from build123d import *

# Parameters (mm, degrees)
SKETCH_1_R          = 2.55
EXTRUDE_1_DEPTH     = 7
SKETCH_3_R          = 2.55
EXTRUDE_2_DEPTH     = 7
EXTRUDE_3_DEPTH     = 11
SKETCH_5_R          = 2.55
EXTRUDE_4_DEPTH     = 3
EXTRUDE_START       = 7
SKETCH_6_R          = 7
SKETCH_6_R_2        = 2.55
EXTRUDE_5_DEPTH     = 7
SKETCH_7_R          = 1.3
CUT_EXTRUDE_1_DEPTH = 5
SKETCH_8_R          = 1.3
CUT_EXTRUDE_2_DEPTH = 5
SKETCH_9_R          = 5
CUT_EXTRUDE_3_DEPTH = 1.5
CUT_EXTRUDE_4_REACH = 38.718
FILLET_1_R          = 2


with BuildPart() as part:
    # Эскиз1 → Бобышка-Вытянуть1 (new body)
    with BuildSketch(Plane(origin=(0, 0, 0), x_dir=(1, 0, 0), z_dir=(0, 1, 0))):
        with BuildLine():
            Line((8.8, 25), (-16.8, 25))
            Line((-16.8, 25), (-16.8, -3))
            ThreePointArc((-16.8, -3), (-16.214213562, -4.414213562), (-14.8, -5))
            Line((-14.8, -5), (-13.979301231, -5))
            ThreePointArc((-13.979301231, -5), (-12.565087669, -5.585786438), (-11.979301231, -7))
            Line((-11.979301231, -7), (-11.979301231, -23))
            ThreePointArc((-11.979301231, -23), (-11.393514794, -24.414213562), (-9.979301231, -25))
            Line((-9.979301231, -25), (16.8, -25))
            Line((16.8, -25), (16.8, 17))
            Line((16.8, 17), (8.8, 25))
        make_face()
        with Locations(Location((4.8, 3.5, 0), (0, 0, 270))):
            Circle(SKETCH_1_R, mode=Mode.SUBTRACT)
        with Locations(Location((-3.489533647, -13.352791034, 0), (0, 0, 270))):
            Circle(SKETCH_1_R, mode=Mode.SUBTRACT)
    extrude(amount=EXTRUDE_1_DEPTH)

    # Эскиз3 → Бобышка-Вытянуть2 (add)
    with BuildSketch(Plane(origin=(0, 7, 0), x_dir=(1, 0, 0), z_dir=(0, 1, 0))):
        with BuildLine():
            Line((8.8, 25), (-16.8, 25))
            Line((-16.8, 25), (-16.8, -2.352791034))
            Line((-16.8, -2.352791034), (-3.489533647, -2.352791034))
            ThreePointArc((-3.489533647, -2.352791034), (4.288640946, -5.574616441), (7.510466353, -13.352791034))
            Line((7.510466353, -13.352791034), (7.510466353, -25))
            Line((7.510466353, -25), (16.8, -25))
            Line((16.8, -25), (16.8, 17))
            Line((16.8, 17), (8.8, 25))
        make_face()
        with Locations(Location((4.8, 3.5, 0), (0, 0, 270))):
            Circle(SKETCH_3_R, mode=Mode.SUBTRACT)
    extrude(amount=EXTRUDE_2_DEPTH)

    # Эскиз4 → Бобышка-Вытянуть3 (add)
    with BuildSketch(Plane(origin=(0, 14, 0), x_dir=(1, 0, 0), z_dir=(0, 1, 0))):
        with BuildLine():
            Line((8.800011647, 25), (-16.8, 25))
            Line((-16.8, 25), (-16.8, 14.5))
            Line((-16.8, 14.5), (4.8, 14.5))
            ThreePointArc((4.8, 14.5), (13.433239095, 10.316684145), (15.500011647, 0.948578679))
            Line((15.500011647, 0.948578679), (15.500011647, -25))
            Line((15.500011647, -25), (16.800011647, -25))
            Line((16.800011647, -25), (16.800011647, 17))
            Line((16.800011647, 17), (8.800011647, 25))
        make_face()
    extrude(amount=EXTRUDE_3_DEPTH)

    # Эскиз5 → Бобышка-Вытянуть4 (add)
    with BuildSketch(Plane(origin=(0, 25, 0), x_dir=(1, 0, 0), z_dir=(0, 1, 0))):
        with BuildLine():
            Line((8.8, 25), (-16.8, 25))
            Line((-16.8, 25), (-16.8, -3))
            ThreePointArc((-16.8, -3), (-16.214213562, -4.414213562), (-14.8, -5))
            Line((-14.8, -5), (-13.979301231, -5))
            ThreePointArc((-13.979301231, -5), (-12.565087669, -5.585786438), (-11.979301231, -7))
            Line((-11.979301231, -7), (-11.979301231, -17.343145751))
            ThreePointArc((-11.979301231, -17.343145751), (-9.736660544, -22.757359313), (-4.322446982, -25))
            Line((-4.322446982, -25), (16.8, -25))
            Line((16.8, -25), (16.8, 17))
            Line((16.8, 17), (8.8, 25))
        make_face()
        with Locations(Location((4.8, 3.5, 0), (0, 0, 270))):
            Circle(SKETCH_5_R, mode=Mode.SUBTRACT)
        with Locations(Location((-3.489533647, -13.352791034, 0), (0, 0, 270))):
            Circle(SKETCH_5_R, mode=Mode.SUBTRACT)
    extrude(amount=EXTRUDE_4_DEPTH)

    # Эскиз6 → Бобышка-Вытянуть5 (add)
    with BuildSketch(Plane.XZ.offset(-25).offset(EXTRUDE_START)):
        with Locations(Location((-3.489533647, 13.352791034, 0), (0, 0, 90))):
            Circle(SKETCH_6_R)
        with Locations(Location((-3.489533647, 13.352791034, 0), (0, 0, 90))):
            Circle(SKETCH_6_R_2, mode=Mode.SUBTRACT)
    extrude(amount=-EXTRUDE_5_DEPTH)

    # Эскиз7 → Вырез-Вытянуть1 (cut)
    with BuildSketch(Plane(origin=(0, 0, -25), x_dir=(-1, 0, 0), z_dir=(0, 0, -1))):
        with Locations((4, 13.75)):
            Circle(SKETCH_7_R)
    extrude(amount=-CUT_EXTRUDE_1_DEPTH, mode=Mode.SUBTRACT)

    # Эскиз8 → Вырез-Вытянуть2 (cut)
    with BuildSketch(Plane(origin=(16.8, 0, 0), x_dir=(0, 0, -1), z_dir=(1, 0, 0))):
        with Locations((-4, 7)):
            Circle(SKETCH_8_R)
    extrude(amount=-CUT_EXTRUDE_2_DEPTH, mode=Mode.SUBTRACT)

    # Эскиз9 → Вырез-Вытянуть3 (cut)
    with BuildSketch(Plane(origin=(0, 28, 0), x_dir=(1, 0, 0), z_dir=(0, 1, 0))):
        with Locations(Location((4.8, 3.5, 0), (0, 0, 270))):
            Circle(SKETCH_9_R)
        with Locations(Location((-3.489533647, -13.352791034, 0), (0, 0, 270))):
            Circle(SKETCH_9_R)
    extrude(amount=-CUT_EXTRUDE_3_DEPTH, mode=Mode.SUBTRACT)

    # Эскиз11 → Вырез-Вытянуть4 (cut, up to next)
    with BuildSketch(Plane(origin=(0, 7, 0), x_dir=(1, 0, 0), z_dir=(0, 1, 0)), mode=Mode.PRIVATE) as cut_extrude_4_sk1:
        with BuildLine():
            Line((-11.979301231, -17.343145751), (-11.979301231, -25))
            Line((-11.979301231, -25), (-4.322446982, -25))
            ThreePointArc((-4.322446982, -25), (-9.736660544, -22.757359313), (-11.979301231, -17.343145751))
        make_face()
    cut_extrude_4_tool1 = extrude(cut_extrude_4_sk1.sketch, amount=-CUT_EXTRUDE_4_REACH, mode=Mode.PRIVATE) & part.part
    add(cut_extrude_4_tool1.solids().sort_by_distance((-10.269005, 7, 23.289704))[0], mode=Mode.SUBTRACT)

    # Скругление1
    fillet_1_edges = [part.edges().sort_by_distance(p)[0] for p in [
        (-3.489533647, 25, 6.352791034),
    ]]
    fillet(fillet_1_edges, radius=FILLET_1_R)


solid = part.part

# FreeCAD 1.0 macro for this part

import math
import FreeCAD as App
import Part
import Sketcher
Q = App.Units.Quantity


def edges_at(feature, points):
    """Names of the edges that pass closest to the given points."""
    edges = feature.Shape.Edges
    near = lambda p: min(range(len(edges)), key=lambda i: edges[i].distToShape(Part.Vertex(*p))[0])
    return sorted({f"Edge{near(p) + 1}" for p in points})

doc = App.newDocument("Part")
body = doc.addObject("PartDesign::Body", "Body")

# Sketch on XZ plane
sketch1 = body.newObject("Sketcher::SketchObject", "Sketch")
sketch1.AttachmentSupport = (doc.getObject("XZ_Plane"), [""])
sketch1.MapMode = "FlatFace"
sketch1.addGeometry([
    Part.LineSegment(App.Vector(8.8, -25, 0), App.Vector(-16.8, -25, 0)),  # 0
    Part.LineSegment(App.Vector(-16.8, -25, 0), App.Vector(-16.8, 3, 0)),  # 1
    Part.ArcOfCircle(Part.Circle(App.Vector(-14.8, 3, 0), App.Vector(0, 0, 1), 2), math.radians(90), math.radians(180)),  # 2
    Part.LineSegment(App.Vector(-14.8, 5, 0), App.Vector(-14, 5, 0)),  # 3
    Part.ArcOfCircle(Part.Circle(App.Vector(-14, 7, 0), App.Vector(0, 0, 1), 2), math.radians(-90), math.radians(0)),  # 4
    Part.LineSegment(App.Vector(-12, 7, 0), App.Vector(-12, 23, 0)),  # 5
    Part.ArcOfCircle(Part.Circle(App.Vector(-10, 23, 0), App.Vector(0, 0, 1), 2), math.radians(90), math.radians(180)),  # 6
    Part.LineSegment(App.Vector(-10, 25, 0), App.Vector(16.8, 25, 0)),  # 7
    Part.LineSegment(App.Vector(16.8, 25, 0), App.Vector(16.8, -17, 0)),  # 8
    Part.LineSegment(App.Vector(16.8, -17, 0), App.Vector(8.8, -25, 0)),  # 9
    Part.Circle(App.Vector(-3.5, 13.4, 0), App.Vector(0, 0, 1), 2.5),  # 10
    Part.Circle(App.Vector(4.8, -3.5, 0), App.Vector(0, 0, 1), 2.5),  # 11
], False)
sketch1.addConstraint([
    Sketcher.Constraint("Coincident", 0, 2, 1, 1),
    Sketcher.Constraint("Tangent", 1, 2, 2, 2),
    Sketcher.Constraint("Tangent", 2, 1, 3, 1),
    Sketcher.Constraint("Tangent", 3, 2, 4, 1),
    Sketcher.Constraint("Tangent", 4, 2, 5, 1),
    Sketcher.Constraint("Tangent", 5, 2, 6, 2),
    Sketcher.Constraint("Tangent", 6, 1, 7, 1),
    Sketcher.Constraint("Coincident", 7, 2, 8, 1),
    Sketcher.Constraint("Coincident", 8, 2, 9, 1),
    Sketcher.Constraint("Coincident", 9, 2, 0, 1),
    Sketcher.Constraint("Horizontal", 0),
    Sketcher.Constraint("Vertical", 1),
    Sketcher.Constraint("Horizontal", 3),
    Sketcher.Constraint("Vertical", 5),
    Sketcher.Constraint("Horizontal", 7),
    Sketcher.Constraint("Vertical", 8),
    Sketcher.Constraint("Equal", 2, 4),
    Sketcher.Constraint("Equal", 4, 6),
    Sketcher.Constraint("Equal", 10, 11),
    Sketcher.Constraint("Symmetric", 0, 2, 7, 2, -1, 1),
    Sketcher.Constraint("Radius", 2, 2.0),
    Sketcher.Constraint("Diameter", 10, 5.1),
    Sketcher.Constraint("DistanceY", 1, 1, 1, 2, 28.0),
    Sketcher.Constraint("DistanceY", 5, 1, 5, 2, 16.0),
    Sketcher.Constraint("DistanceY", 8, 2, 8, 1, 42.0),
    Sketcher.Constraint("Angle", 9, Q("-135 deg")),
    Sketcher.Constraint("DistanceX", 0, 2, 0, 1, 25.6),
    Sketcher.Constraint("DistanceX", 11, 3, 7, 2, 12.0),
    Sketcher.Constraint("DistanceY", 11, 3, -1, 1, 3.5),
    Sketcher.Constraint("DistanceX", 3, 1, 3, 2, 0.820699),
    Sketcher.Constraint("DistanceY", -1, 1, 10, 3, 13.352791),
    Sketcher.Constraint("DistanceX", 10, 3, -1, 1, 3.489534),
])
pad1 = body.newObject("PartDesign::Pad", "Pad")
pad1.Profile = sketch1
pad1.Length = 7
pad1.Reversed = True

# Sketch on XZ plane
sketch2 = body.newObject("Sketcher::SketchObject", "Sketch001")
sketch2.AttachmentSupport = (doc.getObject("XZ_Plane"), [""])
sketch2.MapMode = "FlatFace"
sketch2.AttachmentOffset = App.Placement(App.Vector(0, 0, -7), App.Rotation())
sketch2.addGeometry([
    Part.LineSegment(App.Vector(8.8, -25, 0), App.Vector(-16.8, -25, 0)),  # 0
    Part.LineSegment(App.Vector(-16.8, -25, 0), App.Vector(-16.8, 2.4, 0)),  # 1
    Part.LineSegment(App.Vector(-16.8, 2.4, 0), App.Vector(-3.5, 2.4, 0)),  # 2
    Part.ArcOfCircle(Part.Circle(App.Vector(-3.5, 13.4, 0), App.Vector(0, 0, 1), 11), math.radians(-90), math.radians(0)),  # 3
    Part.LineSegment(App.Vector(7.5, 13.4, 0), App.Vector(7.5, 25, 0)),  # 4
    Part.LineSegment(App.Vector(7.5, 25, 0), App.Vector(16.8, 25, 0)),  # 5
    Part.LineSegment(App.Vector(16.8, 25, 0), App.Vector(16.8, -17, 0)),  # 6
    Part.LineSegment(App.Vector(16.8, -17, 0), App.Vector(8.8, -25, 0)),  # 7
    Part.Circle(App.Vector(4.8, -3.5, 0), App.Vector(0, 0, 1), 2.5),  # 8
], False)
sketch2.addConstraint([
    Sketcher.Constraint("Coincident", 0, 2, 1, 1),
    Sketcher.Constraint("Coincident", 1, 2, 2, 1),
    Sketcher.Constraint("Tangent", 2, 2, 3, 1),
    Sketcher.Constraint("Tangent", 3, 2, 4, 1),
    Sketcher.Constraint("Coincident", 4, 2, 5, 1),
    Sketcher.Constraint("Coincident", 5, 2, 6, 1),
    Sketcher.Constraint("Coincident", 6, 2, 7, 1),
    Sketcher.Constraint("Coincident", 7, 2, 0, 1),
    Sketcher.Constraint("Horizontal", 0),
    Sketcher.Constraint("Vertical", 1),
    Sketcher.Constraint("Horizontal", 2),
    Sketcher.Constraint("Vertical", 4),
    Sketcher.Constraint("Horizontal", 5),
    Sketcher.Constraint("Vertical", 6),
    Sketcher.Constraint("Symmetric", 0, 2, 5, 2, -1, 1),
    Sketcher.Constraint("Radius", 3, 11.0),
    Sketcher.Constraint("Diameter", 8, 5.1),
    Sketcher.Constraint("DistanceY", 6, 2, 6, 1, 42.0),
    Sketcher.Constraint("Angle", 7, Q("-135 deg")),
    Sketcher.Constraint("DistanceX", 0, 2, 0, 1, 25.6),
    Sketcher.Constraint("DistanceY", 0, 2, -1, 1, 25.0),
    Sketcher.Constraint("DistanceX", 8, 3, 5, 2, 12.0),
    Sketcher.Constraint("DistanceY", 8, 3, -1, 1, 3.5),
    Sketcher.Constraint("DistanceY", 1, 1, 1, 2, 27.352791),
    Sketcher.Constraint("DistanceX", 2, 1, 2, 2, 13.310466),
])
pad2 = body.newObject("PartDesign::Pad", "Pad001")
pad2.Profile = sketch2
pad2.Length = 7
pad2.Reversed = True

# Sketch on XZ plane
sketch3 = body.newObject("Sketcher::SketchObject", "Sketch002")
sketch3.AttachmentSupport = (doc.getObject("XZ_Plane"), [""])
sketch3.MapMode = "FlatFace"
sketch3.AttachmentOffset = App.Placement(App.Vector(0, 0, -14), App.Rotation())
sketch3.addGeometry([
    Part.LineSegment(App.Vector(8.8, -25, 0), App.Vector(-16.8, -25, 0)),  # 0
    Part.LineSegment(App.Vector(-16.8, -25, 0), App.Vector(-16.8, -14.5, 0)),  # 1
    Part.LineSegment(App.Vector(-16.8, -14.5, 0), App.Vector(4.8, -14.5, 0)),  # 2
    Part.ArcOfCircle(Part.Circle(App.Vector(4.8, -3.5, 0), App.Vector(0, 0, 1), 11), math.radians(-90), math.radians(13)),  # 3
    Part.LineSegment(App.Vector(15.5, -0.9, 0), App.Vector(15.5, 25, 0)),  # 4
    Part.LineSegment(App.Vector(15.5, 25, 0), App.Vector(16.8, 25, 0)),  # 5
    Part.LineSegment(App.Vector(16.8, 25, 0), App.Vector(16.8, -17, 0)),  # 6
    Part.LineSegment(App.Vector(16.8, -17, 0), App.Vector(8.8, -25, 0)),  # 7
], False)
sketch3.addConstraint([
    Sketcher.Constraint("Coincident", 0, 2, 1, 1),
    Sketcher.Constraint("Coincident", 1, 2, 2, 1),
    Sketcher.Constraint("Tangent", 2, 2, 3, 1),
    Sketcher.Constraint("Coincident", 3, 2, 4, 1),
    Sketcher.Constraint("Coincident", 4, 2, 5, 1),
    Sketcher.Constraint("Coincident", 5, 2, 6, 1),
    Sketcher.Constraint("Coincident", 6, 2, 7, 1),
    Sketcher.Constraint("Coincident", 7, 2, 0, 1),
    Sketcher.Constraint("Horizontal", 0),
    Sketcher.Constraint("Vertical", 1),
    Sketcher.Constraint("Horizontal", 2),
    Sketcher.Constraint("Vertical", 4),
    Sketcher.Constraint("Horizontal", 5),
    Sketcher.Constraint("Vertical", 6),
    Sketcher.Constraint("Radius", 3, 11.0),
    Sketcher.Constraint("DistanceY", 6, 2, 6, 1, 42.0),
    Sketcher.Constraint("Angle", 7, Q("-135 deg")),
    Sketcher.Constraint("DistanceX", 2, 1, 2, 2, 21.6),
    Sketcher.Constraint("DistanceX", 5, 1, 5, 2, 1.3),
    Sketcher.Constraint("DistanceY", 1, 1, 1, 2, 10.5),
    Sketcher.Constraint("DistanceY", 0, 2, -1, 1, 25.0),
    Sketcher.Constraint("DistanceY", -1, 1, 4, 2, 25.0),
    Sketcher.Constraint("DistanceX", -1, 1, 3, 3, 4.8),
    Sketcher.Constraint("DistanceX", 0, 2, 0, 1, 25.600012),
])
pad3 = body.newObject("PartDesign::Pad", "Pad002")
pad3.Profile = sketch3
pad3.Length = 11
pad3.Reversed = True

# Sketch on XZ plane
sketch4 = body.newObject("Sketcher::SketchObject", "Sketch003")
sketch4.AttachmentSupport = (doc.getObject("XZ_Plane"), [""])
sketch4.MapMode = "FlatFace"
sketch4.AttachmentOffset = App.Placement(App.Vector(0, 0, -25), App.Rotation())
sketch4.addGeometry([
    Part.LineSegment(App.Vector(8.8, -25, 0), App.Vector(-16.8, -25, 0)),  # 0
    Part.LineSegment(App.Vector(-16.8, -25, 0), App.Vector(-16.8, 3, 0)),  # 1
    Part.ArcOfCircle(Part.Circle(App.Vector(-14.8, 3, 0), App.Vector(0, 0, 1), 2), math.radians(90), math.radians(180)),  # 2
    Part.LineSegment(App.Vector(-14.8, 5, 0), App.Vector(-14, 5, 0)),  # 3
    Part.ArcOfCircle(Part.Circle(App.Vector(-14, 7, 0), App.Vector(0, 0, 1), 2), math.radians(-90), math.radians(0)),  # 4
    Part.LineSegment(App.Vector(-12, 7, 0), App.Vector(-12, 17.3, 0)),  # 5
    Part.ArcOfCircle(Part.Circle(App.Vector(-4.3, 17.3, 0), App.Vector(0, 0, 1), 7.7), math.radians(90), math.radians(180)),  # 6
    Part.LineSegment(App.Vector(-4.3, 25, 0), App.Vector(16.8, 25, 0)),  # 7
    Part.LineSegment(App.Vector(16.8, 25, 0), App.Vector(16.8, -17, 0)),  # 8
    Part.LineSegment(App.Vector(16.8, -17, 0), App.Vector(8.8, -25, 0)),  # 9
    Part.Circle(App.Vector(-3.5, 13.4, 0), App.Vector(0, 0, 1), 2.5),  # 10
    Part.Circle(App.Vector(4.8, -3.5, 0), App.Vector(0, 0, 1), 2.5),  # 11
], False)
sketch4.addConstraint([
    Sketcher.Constraint("Coincident", 0, 2, 1, 1),
    Sketcher.Constraint("Tangent", 1, 2, 2, 2),
    Sketcher.Constraint("Tangent", 2, 1, 3, 1),
    Sketcher.Constraint("Tangent", 3, 2, 4, 1),
    Sketcher.Constraint("Tangent", 4, 2, 5, 1),
    Sketcher.Constraint("Tangent", 5, 2, 6, 2),
    Sketcher.Constraint("Tangent", 6, 1, 7, 1),
    Sketcher.Constraint("Coincident", 7, 2, 8, 1),
    Sketcher.Constraint("Coincident", 8, 2, 9, 1),
    Sketcher.Constraint("Coincident", 9, 2, 0, 1),
    Sketcher.Constraint("Horizontal", 0),
    Sketcher.Constraint("Vertical", 1),
    Sketcher.Constraint("Horizontal", 3),
    Sketcher.Constraint("Vertical", 5),
    Sketcher.Constraint("Horizontal", 7),
    Sketcher.Constraint("Vertical", 8),
    Sketcher.Constraint("Equal", 2, 4),
    Sketcher.Constraint("Equal", 10, 11),
    Sketcher.Constraint("Symmetric", 0, 2, 7, 2, -1, 1),
    Sketcher.Constraint("Radius", 2, 2.0),
    Sketcher.Constraint("Diameter", 10, 5.1),
    Sketcher.Constraint("DistanceY", 1, 1, 1, 2, 28.0),
    Sketcher.Constraint("DistanceY", 8, 2, 8, 1, 42.0),
    Sketcher.Constraint("Angle", 9, Q("-135 deg")),
    Sketcher.Constraint("DistanceX", 0, 2, 0, 1, 25.6),
    Sketcher.Constraint("DistanceY", -1, 1, 2, 3, 3.0),
    Sketcher.Constraint("DistanceX", 11, 3, 7, 2, 12.0),
    Sketcher.Constraint("DistanceY", 11, 3, -1, 1, 3.5),
    Sketcher.Constraint("DistanceX", 3, 1, 3, 2, 0.820699),
    Sketcher.Constraint("Radius", 6, 7.656854),
    Sketcher.Constraint("DistanceY", -1, 1, 10, 3, 13.352791),
    Sketcher.Constraint("DistanceX", 10, 3, -1, 1, 3.489534),
])
pad4 = body.newObject("PartDesign::Pad", "Pad003")
pad4.Profile = sketch4
pad4.Length = 3
pad4.Reversed = True

# Sketch on XZ plane
sketch5 = body.newObject("Sketcher::SketchObject", "Sketch004")
sketch5.AttachmentSupport = (doc.getObject("XZ_Plane"), [""])
sketch5.MapMode = "FlatFace"
sketch5.AttachmentOffset = App.Placement(App.Vector(0, 0, -18), App.Rotation())
sketch5.addGeometry([
    Part.Circle(App.Vector(-3.5, 13.4, 0), App.Vector(0, 0, 1), 7),
    Part.Circle(App.Vector(-3.5, 13.4, 0), App.Vector(0, 0, 1), 2.5),
], False)
sketch5.addConstraint([
    Sketcher.Constraint("Coincident", 1, 3, 0, 3),
    Sketcher.Constraint("Diameter", 0, 14.0),
    Sketcher.Constraint("Diameter", 1, 5.1),
    Sketcher.Constraint("DistanceY", -1, 1, 0, 3, 13.352791),
    Sketcher.Constraint("DistanceX", 0, 3, -1, 1, 3.489534),
])
pad5 = body.newObject("PartDesign::Pad", "Pad004")
pad5.Profile = sketch5
pad5.Length = 7
pad5.Reversed = True

# Sketch on XY plane
sketch6 = body.newObject("Sketcher::SketchObject", "Sketch005")
sketch6.AttachmentSupport = (doc.getObject("XY_Plane"), [""])
sketch6.MapMode = "FlatFace"
sketch6.AttachmentOffset = App.Placement(App.Vector(0, 0, -25), App.Rotation())
sketch6.addGeometry(Part.Circle(App.Vector(-4, 13.8, 0), App.Vector(0, 0, 1), 1.3), False)
sketch6.addConstraint([
    Sketcher.Constraint("Diameter", 0, 2.6),
    Sketcher.Constraint("DistanceX", 0, 3, -1, 1, 4.0),
    Sketcher.Constraint("DistanceY", -1, 1, 0, 3, 13.75),
])
pocket1 = body.newObject("PartDesign::Pocket", "Pocket")
pocket1.Profile = sketch6
pocket1.Length = 5
pocket1.Reversed = True

# Sketch on YZ plane
sketch7 = body.newObject("Sketcher::SketchObject", "Sketch006")
sketch7.AttachmentSupport = (doc.getObject("YZ_Plane"), [""])
sketch7.MapMode = "FlatFace"
sketch7.AttachmentOffset = App.Placement(App.Vector(0, 0, 16.8), App.Rotation())
sketch7.addGeometry(Part.Circle(App.Vector(7, 4, 0), App.Vector(0, 0, 1), 1.3), False)
sketch7.addConstraint([
    Sketcher.Constraint("Diameter", 0, 2.6),
    Sketcher.Constraint("DistanceX", -1, 1, 0, 3, 7.0),
    Sketcher.Constraint("DistanceY", -1, 1, 0, 3, 4.0),
])
pocket2 = body.newObject("PartDesign::Pocket", "Pocket001")
pocket2.Profile = sketch7
pocket2.Length = 5

# Sketch on XZ plane
sketch8 = body.newObject("Sketcher::SketchObject", "Sketch007")
sketch8.AttachmentSupport = (doc.getObject("XZ_Plane"), [""])
sketch8.MapMode = "FlatFace"
sketch8.AttachmentOffset = App.Placement(App.Vector(0, 0, -28), App.Rotation())
sketch8.addGeometry([
    Part.Circle(App.Vector(5, -4, 0), App.Vector(0, 0, 1), 5),
    Part.Circle(App.Vector(-3, 13, 0), App.Vector(0, 0, 1), 5),
], False)
sketch8.addConstraint([
    Sketcher.Constraint("Equal", 0, 1),
    Sketcher.Constraint("Diameter", 0, 10.0),
    Sketcher.Constraint("DistanceX", -1, 1, 0, 3, 4.8),
    Sketcher.Constraint("DistanceY", 0, 3, -1, 1, 3.5),
    Sketcher.Constraint("DistanceY", -1, 1, 1, 3, 13.352791),
    Sketcher.Constraint("DistanceX", 1, 3, -1, 1, 3.489534),
])
pocket3 = body.newObject("PartDesign::Pocket", "Pocket002")
pocket3.Profile = sketch8
pocket3.Length = 1.5
pocket3.Reversed = True

# Sketch on XZ plane
sketch9 = body.newObject("Sketcher::SketchObject", "Sketch008")
sketch9.AttachmentSupport = (doc.getObject("XZ_Plane"), [""])
sketch9.MapMode = "FlatFace"
sketch9.AttachmentOffset = App.Placement(App.Vector(0, 0, -7), App.Rotation())
sketch9.addGeometry([
    Part.LineSegment(App.Vector(-12, 17, 0), App.Vector(-12, 25, 0)),
    Part.LineSegment(App.Vector(-12, 25, 0), App.Vector(-4, 25, 0)),
    Part.ArcOfCircle(Part.Circle(App.Vector(-4, 17, 0), App.Vector(0, 0, 1), 8), math.radians(90), math.radians(180)),
], False)
sketch9.addConstraint([
    Sketcher.Constraint("Coincident", 0, 2, 1, 1),
    Sketcher.Constraint("Tangent", 1, 2, 2, 1),
    Sketcher.Constraint("Tangent", 2, 2, 0, 1),
    Sketcher.Constraint("Vertical", 0),
    Sketcher.Constraint("Horizontal", 1),
    Sketcher.Constraint("DistanceY", -1, 1, 0, 2, 25.0),
    Sketcher.Constraint("Radius", 2, 7.656854),
    Sketcher.Constraint("DistanceX", 0, 2, -1, 1, 11.979301),
])
pocket4 = body.newObject("PartDesign::Pocket", "Pocket003")
pocket4.Profile = sketch9
pocket4.Type = "UpToFirst"
pocket4.Reversed = True
doc.recompute()

fillet = body.newObject("PartDesign::Fillet", "Fillet")
fillet.Base = (pocket4, edges_at(pocket4, [(-3.49, 25, 6.353)]))
fillet.Radius = 2

doc.recompute()
